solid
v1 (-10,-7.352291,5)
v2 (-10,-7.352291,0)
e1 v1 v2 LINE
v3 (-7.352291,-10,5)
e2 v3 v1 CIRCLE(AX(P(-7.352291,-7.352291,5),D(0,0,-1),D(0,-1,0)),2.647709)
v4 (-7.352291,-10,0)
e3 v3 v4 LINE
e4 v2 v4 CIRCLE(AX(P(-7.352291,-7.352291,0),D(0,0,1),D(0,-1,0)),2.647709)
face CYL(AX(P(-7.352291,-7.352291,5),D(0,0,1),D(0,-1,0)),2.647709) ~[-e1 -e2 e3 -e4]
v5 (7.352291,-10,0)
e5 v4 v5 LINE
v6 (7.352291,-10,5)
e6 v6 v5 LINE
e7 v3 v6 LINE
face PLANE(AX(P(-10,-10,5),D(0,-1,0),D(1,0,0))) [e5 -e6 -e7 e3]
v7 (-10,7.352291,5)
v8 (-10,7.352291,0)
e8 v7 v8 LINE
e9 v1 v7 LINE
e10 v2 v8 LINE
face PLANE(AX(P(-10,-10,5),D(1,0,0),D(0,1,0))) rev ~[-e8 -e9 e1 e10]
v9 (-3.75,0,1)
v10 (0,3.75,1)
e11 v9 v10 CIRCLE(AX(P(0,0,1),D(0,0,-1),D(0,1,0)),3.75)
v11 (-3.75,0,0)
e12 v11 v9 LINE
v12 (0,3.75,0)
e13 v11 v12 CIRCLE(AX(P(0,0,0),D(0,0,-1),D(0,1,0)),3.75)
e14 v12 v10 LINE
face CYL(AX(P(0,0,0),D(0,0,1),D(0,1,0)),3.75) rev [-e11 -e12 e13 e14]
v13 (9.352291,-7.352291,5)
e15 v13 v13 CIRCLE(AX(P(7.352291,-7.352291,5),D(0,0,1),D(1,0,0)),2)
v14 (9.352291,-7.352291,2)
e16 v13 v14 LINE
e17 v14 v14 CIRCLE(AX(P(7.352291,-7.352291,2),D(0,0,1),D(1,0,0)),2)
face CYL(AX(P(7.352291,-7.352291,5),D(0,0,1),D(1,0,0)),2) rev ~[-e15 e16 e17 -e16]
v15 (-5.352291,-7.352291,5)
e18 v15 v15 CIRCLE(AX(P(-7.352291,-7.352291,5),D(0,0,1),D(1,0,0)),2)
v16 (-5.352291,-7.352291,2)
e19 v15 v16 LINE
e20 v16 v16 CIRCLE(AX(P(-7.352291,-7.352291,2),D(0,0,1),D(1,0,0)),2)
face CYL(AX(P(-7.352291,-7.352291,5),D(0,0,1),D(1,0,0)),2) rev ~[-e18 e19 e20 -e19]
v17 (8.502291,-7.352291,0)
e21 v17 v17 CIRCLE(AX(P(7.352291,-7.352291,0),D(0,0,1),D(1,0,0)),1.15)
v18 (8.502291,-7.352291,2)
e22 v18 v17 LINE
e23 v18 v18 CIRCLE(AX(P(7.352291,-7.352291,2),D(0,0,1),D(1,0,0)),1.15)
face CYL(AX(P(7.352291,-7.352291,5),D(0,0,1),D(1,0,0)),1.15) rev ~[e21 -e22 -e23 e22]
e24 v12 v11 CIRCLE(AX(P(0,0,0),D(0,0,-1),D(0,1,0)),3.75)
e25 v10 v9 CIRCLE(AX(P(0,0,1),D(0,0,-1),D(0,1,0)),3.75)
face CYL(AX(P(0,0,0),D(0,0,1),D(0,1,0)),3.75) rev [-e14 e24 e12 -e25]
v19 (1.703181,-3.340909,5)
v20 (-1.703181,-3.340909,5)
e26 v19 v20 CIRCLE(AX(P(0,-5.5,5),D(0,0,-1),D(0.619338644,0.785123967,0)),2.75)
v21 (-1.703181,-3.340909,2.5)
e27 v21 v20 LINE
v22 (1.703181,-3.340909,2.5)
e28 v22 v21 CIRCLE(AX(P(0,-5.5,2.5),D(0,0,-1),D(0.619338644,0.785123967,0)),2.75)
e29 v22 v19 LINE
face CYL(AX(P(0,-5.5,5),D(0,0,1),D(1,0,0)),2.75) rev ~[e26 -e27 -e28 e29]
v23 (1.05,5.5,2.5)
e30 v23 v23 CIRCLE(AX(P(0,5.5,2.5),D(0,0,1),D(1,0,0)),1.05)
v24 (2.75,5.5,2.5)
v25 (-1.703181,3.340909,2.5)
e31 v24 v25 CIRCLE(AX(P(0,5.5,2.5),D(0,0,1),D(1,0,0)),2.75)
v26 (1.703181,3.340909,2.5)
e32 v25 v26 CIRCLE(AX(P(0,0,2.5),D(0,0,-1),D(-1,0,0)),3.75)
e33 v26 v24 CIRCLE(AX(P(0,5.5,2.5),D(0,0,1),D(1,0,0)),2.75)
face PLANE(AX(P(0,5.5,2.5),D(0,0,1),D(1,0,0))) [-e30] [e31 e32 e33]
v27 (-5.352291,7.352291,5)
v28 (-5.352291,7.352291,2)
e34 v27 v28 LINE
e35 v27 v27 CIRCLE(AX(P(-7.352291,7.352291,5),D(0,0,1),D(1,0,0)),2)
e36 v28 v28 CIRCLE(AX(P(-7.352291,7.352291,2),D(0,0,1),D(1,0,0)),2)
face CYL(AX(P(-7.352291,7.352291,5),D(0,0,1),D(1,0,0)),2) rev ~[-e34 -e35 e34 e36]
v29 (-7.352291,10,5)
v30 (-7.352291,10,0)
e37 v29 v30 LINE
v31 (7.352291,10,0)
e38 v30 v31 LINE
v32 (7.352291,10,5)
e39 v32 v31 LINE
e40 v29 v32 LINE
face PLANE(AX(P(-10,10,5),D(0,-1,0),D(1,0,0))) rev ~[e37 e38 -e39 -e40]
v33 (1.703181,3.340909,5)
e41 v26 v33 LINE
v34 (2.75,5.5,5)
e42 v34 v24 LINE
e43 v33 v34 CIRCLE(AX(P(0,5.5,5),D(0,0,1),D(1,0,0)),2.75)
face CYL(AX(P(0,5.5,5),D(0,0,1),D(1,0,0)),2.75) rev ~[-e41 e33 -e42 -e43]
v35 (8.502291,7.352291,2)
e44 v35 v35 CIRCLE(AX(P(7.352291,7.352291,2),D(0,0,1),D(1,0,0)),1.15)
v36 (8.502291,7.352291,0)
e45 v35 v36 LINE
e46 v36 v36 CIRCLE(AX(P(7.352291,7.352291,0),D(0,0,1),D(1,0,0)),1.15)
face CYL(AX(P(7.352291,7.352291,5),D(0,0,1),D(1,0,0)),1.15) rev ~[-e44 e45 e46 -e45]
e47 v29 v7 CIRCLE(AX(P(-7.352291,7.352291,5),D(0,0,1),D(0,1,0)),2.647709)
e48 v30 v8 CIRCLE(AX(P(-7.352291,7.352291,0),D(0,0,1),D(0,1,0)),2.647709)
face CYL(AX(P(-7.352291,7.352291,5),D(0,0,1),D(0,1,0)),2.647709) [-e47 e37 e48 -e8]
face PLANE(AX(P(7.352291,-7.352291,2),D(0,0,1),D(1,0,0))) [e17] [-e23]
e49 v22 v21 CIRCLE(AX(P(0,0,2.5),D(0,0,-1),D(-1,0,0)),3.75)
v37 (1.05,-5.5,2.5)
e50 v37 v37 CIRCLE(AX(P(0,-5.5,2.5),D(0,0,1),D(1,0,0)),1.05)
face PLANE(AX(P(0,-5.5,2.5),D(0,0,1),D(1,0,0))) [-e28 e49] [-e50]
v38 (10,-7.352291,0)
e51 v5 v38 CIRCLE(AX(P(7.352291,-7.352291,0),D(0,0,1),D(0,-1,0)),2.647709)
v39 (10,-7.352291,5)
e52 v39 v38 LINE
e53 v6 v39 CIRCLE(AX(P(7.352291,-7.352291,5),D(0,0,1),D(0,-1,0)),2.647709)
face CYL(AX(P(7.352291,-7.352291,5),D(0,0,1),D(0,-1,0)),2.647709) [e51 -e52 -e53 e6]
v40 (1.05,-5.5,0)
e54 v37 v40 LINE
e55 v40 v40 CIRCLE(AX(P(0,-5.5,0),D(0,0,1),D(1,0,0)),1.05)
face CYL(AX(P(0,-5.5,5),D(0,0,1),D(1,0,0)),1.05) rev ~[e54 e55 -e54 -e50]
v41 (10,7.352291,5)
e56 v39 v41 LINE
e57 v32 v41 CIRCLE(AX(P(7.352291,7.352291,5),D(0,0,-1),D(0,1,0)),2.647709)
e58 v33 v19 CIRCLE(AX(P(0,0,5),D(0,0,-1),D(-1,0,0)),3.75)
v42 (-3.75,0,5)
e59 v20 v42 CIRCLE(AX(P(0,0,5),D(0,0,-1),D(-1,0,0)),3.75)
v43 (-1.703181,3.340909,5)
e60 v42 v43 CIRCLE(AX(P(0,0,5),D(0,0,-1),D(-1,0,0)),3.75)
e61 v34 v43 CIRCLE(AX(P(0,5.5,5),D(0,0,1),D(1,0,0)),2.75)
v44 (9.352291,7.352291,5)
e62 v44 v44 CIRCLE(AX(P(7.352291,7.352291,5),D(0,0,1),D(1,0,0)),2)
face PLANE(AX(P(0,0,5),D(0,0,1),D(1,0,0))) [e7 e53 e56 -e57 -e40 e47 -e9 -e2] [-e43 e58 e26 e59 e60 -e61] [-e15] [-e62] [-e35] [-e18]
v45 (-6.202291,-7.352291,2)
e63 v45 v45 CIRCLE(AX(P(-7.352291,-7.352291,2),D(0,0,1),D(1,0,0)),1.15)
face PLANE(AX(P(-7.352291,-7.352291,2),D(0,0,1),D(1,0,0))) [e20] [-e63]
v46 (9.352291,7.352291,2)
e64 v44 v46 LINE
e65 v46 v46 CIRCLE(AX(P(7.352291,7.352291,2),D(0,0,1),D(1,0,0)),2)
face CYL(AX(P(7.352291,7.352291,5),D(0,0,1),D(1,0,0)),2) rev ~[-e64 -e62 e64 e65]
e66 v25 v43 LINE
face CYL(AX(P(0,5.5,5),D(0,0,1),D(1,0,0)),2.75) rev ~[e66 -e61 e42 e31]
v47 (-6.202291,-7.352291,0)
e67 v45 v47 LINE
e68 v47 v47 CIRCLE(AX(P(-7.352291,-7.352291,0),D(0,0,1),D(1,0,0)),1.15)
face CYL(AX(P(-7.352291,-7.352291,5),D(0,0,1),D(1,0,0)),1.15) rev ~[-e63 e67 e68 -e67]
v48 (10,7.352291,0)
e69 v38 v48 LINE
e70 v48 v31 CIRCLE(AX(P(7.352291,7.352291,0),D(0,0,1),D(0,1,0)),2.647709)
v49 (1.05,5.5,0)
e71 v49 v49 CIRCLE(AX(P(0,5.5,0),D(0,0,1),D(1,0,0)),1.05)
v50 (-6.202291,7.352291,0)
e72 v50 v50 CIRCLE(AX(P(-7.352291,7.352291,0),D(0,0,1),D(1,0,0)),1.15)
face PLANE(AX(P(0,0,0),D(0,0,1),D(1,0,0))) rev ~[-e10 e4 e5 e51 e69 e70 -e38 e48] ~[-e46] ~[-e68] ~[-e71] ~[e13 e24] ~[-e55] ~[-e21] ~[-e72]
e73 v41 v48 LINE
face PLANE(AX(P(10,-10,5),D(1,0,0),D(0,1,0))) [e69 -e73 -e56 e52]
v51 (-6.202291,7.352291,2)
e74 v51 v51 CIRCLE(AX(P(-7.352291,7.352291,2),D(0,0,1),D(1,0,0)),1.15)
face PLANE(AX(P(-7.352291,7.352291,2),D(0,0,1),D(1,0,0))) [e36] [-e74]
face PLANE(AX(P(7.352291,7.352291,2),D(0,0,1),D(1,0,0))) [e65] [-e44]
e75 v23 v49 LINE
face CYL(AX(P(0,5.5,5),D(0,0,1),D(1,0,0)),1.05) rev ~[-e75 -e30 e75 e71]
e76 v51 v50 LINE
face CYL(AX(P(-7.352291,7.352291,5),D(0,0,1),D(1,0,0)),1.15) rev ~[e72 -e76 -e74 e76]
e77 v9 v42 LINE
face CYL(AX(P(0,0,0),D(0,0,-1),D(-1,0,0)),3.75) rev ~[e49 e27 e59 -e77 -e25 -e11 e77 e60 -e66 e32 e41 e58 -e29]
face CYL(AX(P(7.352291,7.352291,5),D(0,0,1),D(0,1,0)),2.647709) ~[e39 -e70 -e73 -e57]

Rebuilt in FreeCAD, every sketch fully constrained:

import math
import FreeCAD as App
import Part
import Sketcher
Q = App.Units.Quantity


def add_polygon(sketch, points):
    """Adds a closed chain of lines whose ends are joined by coincident constraints."""
    first, n = sketch.GeometryCount, len(points)
    for a, b in zip(points, points[1:] + points[:1]):
        sketch.addGeometry(Part.LineSegment(App.Vector(*a, 0), App.Vector(*b, 0)), False)
    for i in range(n):
        sketch.addConstraint(Sketcher.Constraint("Coincident", first + i, 2, first + (i + 1) % n, 1))

doc = App.newDocument("Part")
params = doc.addObject("Spreadsheet::Sheet", "Params")
for row, (alias, value) in enumerate([
    ("sketch1_height", "1 mm"),
    ("sketch1_height2", "5 mm"),
    ("sketch1_width", "5.5 mm"),
    ("sketch1_width2", "0.5 mm"),
    ("sketch1_height3", "2.4 mm"),
    ("revolution_angle", "360 deg"),
    ("sketch2_diameter", "15 mm"),
    ("sketch2_width", "20 mm"),
    ("pad1_length", "5 mm"),
    ("sketch3_diameter", "2.1 mm"),
    ("sketch4_diameter", "5.5 mm"),
    ("pocket2_length", "2.5 mm"),
    ("sketch6_diameter", "2.3 mm"),
    ("sketch7_diameter", "4 mm"),
    ("pocket5_length", "3 mm"),
    ("sketch8_diameter", "7.5 mm"),
], start=1):
    params.set(f"A{row}", alias)
    params.set(f"B{row}", "=" + value)
    params.setAlias(f"B{row}", alias)

body = doc.addObject("PartDesign::Body", "Body")

sketch1 = doc.addObject("Sketcher::SketchObject", "Sketch")
body.addObject(sketch1)
sketch1.AttachmentSupport = (doc.YZ_Plane, [""])
sketch1.MapMode = "FlatFace"
add_polygon(sketch1, [(3.75, 1), (3.75, 0), (7.5, 0), (7.5, 5), (2, 5), (2, 2.6), (3.25, 2.6), (3.25, 1)])
sketch1.addConstraint([
    Sketcher.Constraint("Vertical", 0),
    Sketcher.Constraint("Horizontal", 1),
    Sketcher.Constraint("Vertical", 2),
    Sketcher.Constraint("Horizontal", 3),
    Sketcher.Constraint("Vertical", 4),
    Sketcher.Constraint("Horizontal", 5),
    Sketcher.Constraint("Vertical", 6),
    Sketcher.Constraint("Horizontal", 7),
    Sketcher.Constraint("PointOnObject", 0, 2, -1),
    Sketcher.Constraint("DistanceY", 0, 2, 0, 1, Q("1 mm")),
    Sketcher.Constraint("DistanceY", 2, 1, 2, 2, Q("5 mm")),
    Sketcher.Constraint("DistanceX", 3, 2, 3, 1, Q("5.5 mm")),
    Sketcher.Constraint("DistanceX", 7, 1, 7, 2, Q("0.5 mm")),
    Sketcher.Constraint("DistanceY", 4, 2, 4, 1, Q("2.4 mm")),
    Sketcher.Constraint("DistanceX", -1, 1, 3, 2, Q("2 mm")),
    Sketcher.Constraint("DistanceX", 1, 1, 1, 2, Q("3.75 mm")),
])
sketch1.setExpression("Constraints[17]", "Params.sketch1_height")
sketch1.setExpression("Constraints[18]", "Params.sketch1_height2")
sketch1.setExpression("Constraints[19]", "Params.sketch1_width")
sketch1.setExpression("Constraints[20]", "Params.sketch1_width2")
sketch1.setExpression("Constraints[21]", "Params.sketch1_height3")
revolution = doc.addObject("PartDesign::Revolution", "Revolution")
body.addObject(revolution)
revolution.Profile = sketch1
revolution.ReferenceAxis = (sketch1, ["V_Axis"])
revolution.setExpression("Angle", "Params.revolution_angle")

sketch2 = doc.addObject("Sketcher::SketchObject", "Sketch001")
body.addObject(sketch2)
sketch2.AttachmentSupport = (doc.XY_Plane, [""])
sketch2.MapMode = "FlatFace"
sketch2.AttachmentOffset = App.Placement(App.Vector(0, 0, 5), App.Rotation())
add_polygon(sketch2, [(-10, 10), (-10, -10), (10, -10), (10, 10)])
sketch2.addGeometry(Part.Circle(App.Vector(0, 0, 0), App.Vector(0, 0, 1), 7.5), False)
sketch2.addConstraint([
    Sketcher.Constraint("Vertical", 0),
    Sketcher.Constraint("Horizontal", 1),
    Sketcher.Constraint("Vertical", 2),
    Sketcher.Constraint("Horizontal", 3),
    Sketcher.Constraint("Coincident", 4, 3, -1, 1),
    Sketcher.Constraint("Symmetric", 0, 2, 2, 2, -1, 1),
    Sketcher.Constraint("Equal", 3, 0),
    Sketcher.Constraint("Diameter", 4, Q("15 mm")),
    Sketcher.Constraint("DistanceX", 1, 1, 1, 2, Q("20 mm")),
])
sketch2.setExpression("Constraints[11]", "Params.sketch2_diameter")
sketch2.setExpression("Constraints[12]", "Params.sketch2_width")
pad1 = doc.addObject("PartDesign::Pad", "Pad")
body.addObject(pad1)
pad1.Profile = sketch2
pad1.setExpression("Length", "Params.pad1_length")
pad1.Reversed = True

sketch3 = doc.addObject("Sketcher::SketchObject", "Sketch002")
body.addObject(sketch3)
sketch3.AttachmentSupport = (doc.XY_Plane, [""])
sketch3.MapMode = "FlatFace"
sketch3.AttachmentOffset = App.Placement(App.Vector(0, 0, 5), App.Rotation())
sketch3.addGeometry([
    Part.Circle(App.Vector(0, 5.5, 0), App.Vector(0, 0, 1), 1.05),
    Part.Circle(App.Vector(0, -5.5, 0), App.Vector(0, 0, 1), 1.05),
], False)
sketch3.addConstraint([
    Sketcher.Constraint("Equal", 0, 1),
    Sketcher.Constraint("Symmetric", 0, 3, 1, 3, -1, 1),
    Sketcher.Constraint("PointOnObject", 0, 3, -2),
    Sketcher.Constraint("Diameter", 0, Q("2.1 mm")),
    Sketcher.Constraint("DistanceY", 1, 3, 0, 3, Q("11 mm")),
])
sketch3.setExpression("Constraints[3]", "Params.sketch3_diameter")
pocket1 = doc.addObject("PartDesign::Pocket", "Pocket")
body.addObject(pocket1)
pocket1.Profile = sketch3
pocket1.Type = "ThroughAll"

sketch4 = doc.addObject("Sketcher::SketchObject", "Sketch003")
body.addObject(sketch4)
sketch4.AttachmentSupport = (doc.XY_Plane, [""])
sketch4.MapMode = "FlatFace"
sketch4.AttachmentOffset = App.Placement(App.Vector(0, 0, 5), App.Rotation())
sketch4.addGeometry([
    Part.Circle(App.Vector(0, 5.5, 0), App.Vector(0, 0, 1), 2.75),
    Part.Circle(App.Vector(0, -5.5, 0), App.Vector(0, 0, 1), 2.75),
], False)
sketch4.addConstraint([
    Sketcher.Constraint("Equal", 0, 1),
    Sketcher.Constraint("Symmetric", 0, 3, 1, 3, -1, 1),
    Sketcher.Constraint("PointOnObject", 0, 3, -2),
    Sketcher.Constraint("Diameter", 0, Q("5.5 mm")),
    Sketcher.Constraint("DistanceY", 1, 3, 0, 3, Q("11 mm")),
])
sketch4.setExpression("Constraints[3]", "Params.sketch4_diameter")
pocket2 = doc.addObject("PartDesign::Pocket", "Pocket001")
body.addObject(pocket2)
pocket2.Profile = sketch4
pocket2.setExpression("Length", "Params.pocket2_length")

sketch5 = doc.addObject("Sketcher::SketchObject", "Sketch004")
body.addObject(sketch5)
sketch5.AttachmentSupport = (doc.XY_Plane, [""])
sketch5.MapMode = "FlatFace"
sketch5.AttachmentOffset = App.Placement(App.Vector(0, 0, 5), App.Rotation())
sketch5.addGeometry([
    Part.LineSegment(App.Vector(-10.887825, 7.352291, 0), App.Vector(-10, 7.352291, 0)),
    Part.ArcOfCircle(Part.Circle(App.Vector(-7.352291, 7.352291, 0), App.Vector(0, 0, 1), 2.647709), math.radians(90), math.radians(180)),
    Part.LineSegment(App.Vector(-7.352291, 10, 0), App.Vector(-7.352291, 10.887825, 0)),
    Part.LineSegment(App.Vector(-7.352291, 10.887825, 0), App.Vector(-10.887825, 10.887825, 0)),
    Part.LineSegment(App.Vector(-10.887825, 10.887825, 0), App.Vector(-10.887825, 7.352291, 0)),
    Part.LineSegment(App.Vector(7.352291, 10.887825, 0), App.Vector(7.352291, 10, 0)),
    Part.ArcOfCircle(Part.Circle(App.Vector(7.352291, 7.352291, 0), App.Vector(0, 0, 1), 2.647709), math.radians(0), math.radians(90)),
    Part.LineSegment(App.Vector(10, 7.352291, 0), App.Vector(10.887825, 7.352291, 0)),
    Part.LineSegment(App.Vector(10.887825, 7.352291, 0), App.Vector(10.887825, 10.887825, 0)),
    Part.LineSegment(App.Vector(10.887825, 10.887825, 0), App.Vector(7.352291, 10.887825, 0)),
    Part.LineSegment(App.Vector(10.887825, -7.352291, 0), App.Vector(10, -7.352291, 0)),
    Part.ArcOfCircle(Part.Circle(App.Vector(7.352291, -7.352291, 0), App.Vector(0, 0, 1), 2.647709), math.radians(-90), math.radians(0)),
    Part.LineSegment(App.Vector(7.352291, -10, 0), App.Vector(7.352291, -10.887825, 0)),
    Part.LineSegment(App.Vector(7.352291, -10.887825, 0), App.Vector(10.887825, -10.887825, 0)),
    Part.LineSegment(App.Vector(10.887825, -10.887825, 0), App.Vector(10.887825, -7.352291, 0)),
    Part.LineSegment(App.Vector(-7.352291, -10.887825, 0), App.Vector(-7.352291, -10, 0)),
    Part.ArcOfCircle(Part.Circle(App.Vector(-7.352291, -7.352291, 0), App.Vector(0, 0, 1), 2.647709), math.radians(180), math.radians(270)),
    Part.LineSegment(App.Vector(-10, -7.352291, 0), App.Vector(-10.887825, -7.352291, 0)),
    Part.LineSegment(App.Vector(-10.887825, -7.352291, 0), App.Vector(-10.887825, -10.887825, 0)),
    Part.LineSegment(App.Vector(-10.887825, -10.887825, 0), App.Vector(-7.352291, -10.887825, 0)),
], False)
sketch5.addConstraint([
    Sketcher.Constraint("Coincident", 0, 2, 1, 2),
    Sketcher.Constraint("Coincident", 1, 1, 2, 1),
    Sketcher.Constraint("Coincident", 2, 2, 3, 1),
    Sketcher.Constraint("Coincident", 3, 2, 4, 1),
    Sketcher.Constraint("Coincident", 4, 2, 0, 1),
    Sketcher.Constraint("Coincident", 5, 2, 6, 2),
    Sketcher.Constraint("Coincident", 6, 1, 7, 1),
    Sketcher.Constraint("Coincident", 7, 2, 8, 1),
    Sketcher.Constraint("Coincident", 8, 2, 9, 1),
    Sketcher.Constraint("Coincident", 9, 2, 5, 1),
    Sketcher.Constraint("Coincident", 10, 2, 11, 2),
    Sketcher.Constraint("Coincident", 11, 1, 12, 1),
    Sketcher.Constraint("Coincident", 12, 2, 13, 1),
    Sketcher.Constraint("Coincident", 13, 2, 14, 1),
    Sketcher.Constraint("Coincident", 14, 2, 10, 1),
    Sketcher.Constraint("Coincident", 15, 2, 16, 2),
    Sketcher.Constraint("Coincident", 16, 1, 17, 1),
    Sketcher.Constraint("Coincident", 17, 2, 18, 1),
    Sketcher.Constraint("Coincident", 18, 2, 19, 1),
    Sketcher.Constraint("Coincident", 19, 2, 15, 1),
    Sketcher.Constraint("Horizontal", 0),
    Sketcher.Constraint("Vertical", 2),
    Sketcher.Constraint("Horizontal", 3),
    Sketcher.Constraint("Vertical", 4),
    Sketcher.Constraint("Vertical", 5),
    Sketcher.Constraint("Horizontal", 7),
    Sketcher.Constraint("Vertical", 8),
    Sketcher.Constraint("Horizontal", 9),
    Sketcher.Constraint("Horizontal", 10),
    Sketcher.Constraint("Vertical", 12),
    Sketcher.Constraint("Horizontal", 13),
    Sketcher.Constraint("Vertical", 14),
    Sketcher.Constraint("Vertical", 15),
    Sketcher.Constraint("Horizontal", 17),
    Sketcher.Constraint("Vertical", 18),
    Sketcher.Constraint("Horizontal", 19),
    Sketcher.Constraint("Equal", 1, 6),
    Sketcher.Constraint("Equal", 6, 11),
    Sketcher.Constraint("Equal", 11, 16),
    Sketcher.Constraint("Symmetric", 1, 3, 11, 3, -1, 1),
    Sketcher.Constraint("Symmetric", 6, 3, 16, 3, -1, 1),
    Sketcher.Constraint("Symmetric", 2, 2, 12, 2, -1, 1),
    Sketcher.Constraint("Symmetric", 4, 2, 14, 2, -1, 1),
    Sketcher.Constraint("Symmetric", 7, 2, 17, 2, -1, 1),
    Sketcher.Constraint("Symmetric", 9, 2, 19, 2, -1, 1),
    Sketcher.Constraint("Symmetric", 1, 3, 6, 3, -2),
    Sketcher.Constraint("Symmetric", 4, 2, 7, 2, -2),
    Sketcher.Constraint("Symmetric", 2, 2, 9, 2, -2),
    Sketcher.Constraint("Horizontal", 6, 3, 0, 2),
    Sketcher.Constraint("Vertical", 16, 3, 1, 1),
    Sketcher.Constraint("Equal", 17, 2),
    Sketcher.Constraint("DistanceX", 0, 2, -1, 1, Q("10 mm")),
    Sketcher.Constraint("DistanceY", -1, 1, 1, 1, Q("10 mm")),
    Sketcher.Constraint("Radius", 1, Q("2.647709 mm")),
    Sketcher.Constraint("DistanceX", 0, 1, 0, 2, Q("0.887825 mm")),
])
pocket3 = doc.addObject("PartDesign::Pocket", "Pocket002")
body.addObject(pocket3)
pocket3.Profile = sketch5
pocket3.Type = "ThroughAll"

sketch6 = doc.addObject("Sketcher::SketchObject", "Sketch005")
body.addObject(sketch6)
sketch6.AttachmentSupport = (doc.XY_Plane, [""])
sketch6.MapMode = "FlatFace"
sketch6.AttachmentOffset = App.Placement(App.Vector(0, 0, 5), App.Rotation())
sketch6.addGeometry([
    Part.Circle(App.Vector(-7.352291, 7.352291, 0), App.Vector(0, 0, 1), 1.15),
    Part.Circle(App.Vector(7.352291, 7.352291, 0), App.Vector(0, 0, 1), 1.15),
    Part.Circle(App.Vector(7.352291, -7.352291, 0), App.Vector(0, 0, 1), 1.15),
    Part.Circle(App.Vector(-7.352291, -7.352291, 0), App.Vector(0, 0, 1), 1.15),
], False)
sketch6.addConstraint([
    Sketcher.Constraint("Equal", 0, 1),
    Sketcher.Constraint("Equal", 1, 2),
    Sketcher.Constraint("Equal", 2, 3),
    Sketcher.Constraint("Symmetric", 0, 3, 2, 3, -1, 1),
    Sketcher.Constraint("Symmetric", 1, 3, 3, 3, -1, 1),
    Sketcher.Constraint("Symmetric", 0, 3, 1, 3, -2),
    Sketcher.Constraint("Diameter", 0, Q("2.3 mm")),
    Sketcher.Constraint("DistanceX", 0, 3, -1, 1, Q("7.352291 mm")),
    Sketcher.Constraint("DistanceY", -1, 1, 0, 3, Q("7.352291 mm")),
])
sketch6.setExpression("Constraints[6]", "Params.sketch6_diameter")
pocket4 = doc.addObject("PartDesign::Pocket", "Pocket003")
body.addObject(pocket4)
pocket4.Profile = sketch6
pocket4.Type = "ThroughAll"

sketch7 = doc.addObject("Sketcher::SketchObject", "Sketch006")
body.addObject(sketch7)
sketch7.AttachmentSupport = (doc.XY_Plane, [""])
sketch7.MapMode = "FlatFace"
sketch7.AttachmentOffset = App.Placement(App.Vector(0, 0, 5), App.Rotation())
sketch7.addGeometry([
    Part.Circle(App.Vector(-7.352291, 7.352291, 0), App.Vector(0, 0, 1), 2),
    Part.Circle(App.Vector(7.352291, 7.352291, 0), App.Vector(0, 0, 1), 2),
    Part.Circle(App.Vector(7.352291, -7.352291, 0), App.Vector(0, 0, 1), 2),
    Part.Circle(App.Vector(-7.352291, -7.352291, 0), App.Vector(0, 0, 1), 2),
], False)
sketch7.addConstraint([
    Sketcher.Constraint("Equal", 0, 1),
    Sketcher.Constraint("Equal", 1, 2),
    Sketcher.Constraint("Equal", 2, 3),
    Sketcher.Constraint("Symmetric", 0, 3, 2, 3, -1, 1),
    Sketcher.Constraint("Symmetric", 1, 3, 3, 3, -1, 1),
    Sketcher.Constraint("Symmetric", 0, 3, 1, 3, -2),
    Sketcher.Constraint("Diameter", 0, Q("4 mm")),
    Sketcher.Constraint("DistanceX", 0, 3, -1, 1, Q("7.352291 mm")),
    Sketcher.Constraint("DistanceY", -1, 1, 0, 3, Q("7.352291 mm")),
])
sketch7.setExpression("Constraints[6]", "Params.sketch7_diameter")
pocket5 = doc.addObject("PartDesign::Pocket", "Pocket004")
body.addObject(pocket5)
pocket5.Profile = sketch7
pocket5.setExpression("Length", "Params.pocket5_length")

sketch8 = doc.addObject("Sketcher::SketchObject", "Sketch007")
body.addObject(sketch8)
sketch8.AttachmentSupport = (doc.XY_Plane, [""])
sketch8.MapMode = "FlatFace"
sketch8.addGeometry(Part.Circle(App.Vector(0, 0, 0), App.Vector(0, 0, 1), 3.75), False)
sketch8.addConstraint([
    Sketcher.Constraint("Coincident", 0, 3, -1, 1),
    Sketcher.Constraint("Diameter", 0, Q("7.5 mm")),
])
sketch8.setExpression("Constraints[1]", "Params.sketch8_diameter")
pocket6 = doc.addObject("PartDesign::Pocket", "Pocket005")
body.addObject(pocket6)
pocket6.Profile = sketch8
pocket6.Type = "ThroughAll"
pocket6.Reversed = True

doc.recompute()
